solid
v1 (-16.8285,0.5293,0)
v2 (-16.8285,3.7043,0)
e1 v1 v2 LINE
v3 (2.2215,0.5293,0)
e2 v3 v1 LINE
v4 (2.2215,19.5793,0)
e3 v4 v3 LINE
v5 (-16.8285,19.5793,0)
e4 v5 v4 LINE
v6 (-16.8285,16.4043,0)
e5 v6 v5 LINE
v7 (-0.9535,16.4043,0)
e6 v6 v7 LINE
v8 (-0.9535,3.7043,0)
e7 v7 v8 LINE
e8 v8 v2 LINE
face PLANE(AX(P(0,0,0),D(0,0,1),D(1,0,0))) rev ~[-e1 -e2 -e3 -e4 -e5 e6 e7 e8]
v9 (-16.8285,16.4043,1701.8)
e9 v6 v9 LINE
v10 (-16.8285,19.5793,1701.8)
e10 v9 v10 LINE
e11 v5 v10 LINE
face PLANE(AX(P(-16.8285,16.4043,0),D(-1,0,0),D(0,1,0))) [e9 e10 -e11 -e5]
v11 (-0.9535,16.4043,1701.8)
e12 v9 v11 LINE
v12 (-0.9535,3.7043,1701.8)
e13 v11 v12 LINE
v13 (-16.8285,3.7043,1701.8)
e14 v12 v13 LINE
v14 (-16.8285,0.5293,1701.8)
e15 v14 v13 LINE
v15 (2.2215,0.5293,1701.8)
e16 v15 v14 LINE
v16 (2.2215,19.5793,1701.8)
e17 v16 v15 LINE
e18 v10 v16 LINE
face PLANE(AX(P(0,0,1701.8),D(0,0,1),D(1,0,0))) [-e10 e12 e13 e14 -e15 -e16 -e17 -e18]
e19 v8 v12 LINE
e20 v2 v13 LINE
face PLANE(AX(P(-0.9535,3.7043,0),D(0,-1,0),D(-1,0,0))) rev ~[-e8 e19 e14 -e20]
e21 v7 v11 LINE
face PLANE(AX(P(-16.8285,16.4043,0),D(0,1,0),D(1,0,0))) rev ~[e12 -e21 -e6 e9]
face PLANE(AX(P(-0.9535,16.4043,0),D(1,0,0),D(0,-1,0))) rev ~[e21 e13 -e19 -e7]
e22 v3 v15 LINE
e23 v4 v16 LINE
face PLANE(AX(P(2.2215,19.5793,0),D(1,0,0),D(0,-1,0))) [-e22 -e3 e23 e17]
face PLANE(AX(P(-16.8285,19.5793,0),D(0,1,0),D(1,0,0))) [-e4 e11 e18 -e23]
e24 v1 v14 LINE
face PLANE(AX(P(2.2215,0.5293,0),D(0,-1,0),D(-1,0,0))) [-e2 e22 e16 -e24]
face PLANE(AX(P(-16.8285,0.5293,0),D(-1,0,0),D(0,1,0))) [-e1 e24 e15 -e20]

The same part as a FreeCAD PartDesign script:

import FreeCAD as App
import Part
import Sketcher
from FreeCAD import Vector
Q = App.Units.Quantity

doc = App.newDocument("Part")
body = doc.addObject("PartDesign::Body", "Body")

# Sketch on XY plane
sketch1 = body.newObject("Sketcher::SketchObject", "Sketch")
sketch1.AttachmentSupport = (doc.getObject("XY_Plane"), [""])
sketch1.MapMode = "FlatFace"
sketch1.addGeometry(Part.LineSegment(Vector(2.2, 19.6, 0), Vector(-16.8, 19.6, 0)), False)
sketch1.addGeometry(Part.LineSegment(Vector(-16.8, 19.6, 0), Vector(-16.8, 16.4, 0)), False)
sketch1.addGeometry(Part.LineSegment(Vector(-16.8, 16.4, 0), Vector(-1, 16.4, 0)), False)
sketch1.addGeometry(Part.LineSegment(Vector(-1, 16.4, 0), Vector(-1, 3.7, 0)), False)
sketch1.addGeometry(Part.LineSegment(Vector(-1, 3.7, 0), Vector(-16.8, 3.7, 0)), False)
sketch1.addGeometry(Part.LineSegment(Vector(-16.8, 3.7, 0), Vector(-16.8, 0.5, 0)), False)
sketch1.addGeometry(Part.LineSegment(Vector(-16.8, 0.5, 0), Vector(2.2, 0.5, 0)), False)
sketch1.addGeometry(Part.LineSegment(Vector(2.2, 0.5, 0), Vector(2.2, 19.6, 0)), False)
sketch1.addConstraint(Sketcher.Constraint("Coincident", 0, 2, 1, 1))
sketch1.addConstraint(Sketcher.Constraint("Coincident", 1, 2, 2, 1))
sketch1.addConstraint(Sketcher.Constraint("Coincident", 2, 2, 3, 1))
sketch1.addConstraint(Sketcher.Constraint("Coincident", 3, 2, 4, 1))
sketch1.addConstraint(Sketcher.Constraint("Coincident", 4, 2, 5, 1))
sketch1.addConstraint(Sketcher.Constraint("Coincident", 5, 2, 6, 1))
sketch1.addConstraint(Sketcher.Constraint("Coincident", 6, 2, 7, 1))
sketch1.addConstraint(Sketcher.Constraint("Coincident", 7, 2, 0, 1))
sketch1.addConstraint(Sketcher.Constraint("Horizontal", 0))
sketch1.addConstraint(Sketcher.Constraint("Vertical", 1))
sketch1.addConstraint(Sketcher.Constraint("Horizontal", 2))
sketch1.addConstraint(Sketcher.Constraint("Vertical", 3))
sketch1.addConstraint(Sketcher.Constraint("Horizontal", 4))
sketch1.addConstraint(Sketcher.Constraint("Vertical", 5))
sketch1.addConstraint(Sketcher.Constraint("Horizontal", 6))
sketch1.addConstraint(Sketcher.Constraint("Vertical", 7))
sketch1.addConstraint(Sketcher.Constraint("Vertical", 1, 2, 4, 2))
sketch1.addConstraint(Sketcher.Constraint("Equal", 1, 5))
sketch1.addConstraint(Sketcher.Constraint("Equal", 6, 7))
sketch1.addConstraint(Sketcher.Constraint("DistanceX", 0, 2, 0, 1, Q("0.75 in")))
sketch1.addConstraint(Sketcher.Constraint("DistanceY", 1, 2, 1, 1, Q("0.125 in")))
sketch1.addConstraint(Sketcher.Constraint("DistanceX", 3, 2, 6, 2, Q("0.125 in")))
sketch1.addConstraint(Sketcher.Constraint("DistanceX", 0, 2, -1, 1, 16.8285))
sketch1.addConstraint(Sketcher.Constraint("DistanceY", -1, 1, 0, 2, 19.5793))
pad1 = body.newObject("PartDesign::Pad", "Pad")
pad1.Profile = sketch1
pad1.Length = Q("67 in")

doc.recompute()
